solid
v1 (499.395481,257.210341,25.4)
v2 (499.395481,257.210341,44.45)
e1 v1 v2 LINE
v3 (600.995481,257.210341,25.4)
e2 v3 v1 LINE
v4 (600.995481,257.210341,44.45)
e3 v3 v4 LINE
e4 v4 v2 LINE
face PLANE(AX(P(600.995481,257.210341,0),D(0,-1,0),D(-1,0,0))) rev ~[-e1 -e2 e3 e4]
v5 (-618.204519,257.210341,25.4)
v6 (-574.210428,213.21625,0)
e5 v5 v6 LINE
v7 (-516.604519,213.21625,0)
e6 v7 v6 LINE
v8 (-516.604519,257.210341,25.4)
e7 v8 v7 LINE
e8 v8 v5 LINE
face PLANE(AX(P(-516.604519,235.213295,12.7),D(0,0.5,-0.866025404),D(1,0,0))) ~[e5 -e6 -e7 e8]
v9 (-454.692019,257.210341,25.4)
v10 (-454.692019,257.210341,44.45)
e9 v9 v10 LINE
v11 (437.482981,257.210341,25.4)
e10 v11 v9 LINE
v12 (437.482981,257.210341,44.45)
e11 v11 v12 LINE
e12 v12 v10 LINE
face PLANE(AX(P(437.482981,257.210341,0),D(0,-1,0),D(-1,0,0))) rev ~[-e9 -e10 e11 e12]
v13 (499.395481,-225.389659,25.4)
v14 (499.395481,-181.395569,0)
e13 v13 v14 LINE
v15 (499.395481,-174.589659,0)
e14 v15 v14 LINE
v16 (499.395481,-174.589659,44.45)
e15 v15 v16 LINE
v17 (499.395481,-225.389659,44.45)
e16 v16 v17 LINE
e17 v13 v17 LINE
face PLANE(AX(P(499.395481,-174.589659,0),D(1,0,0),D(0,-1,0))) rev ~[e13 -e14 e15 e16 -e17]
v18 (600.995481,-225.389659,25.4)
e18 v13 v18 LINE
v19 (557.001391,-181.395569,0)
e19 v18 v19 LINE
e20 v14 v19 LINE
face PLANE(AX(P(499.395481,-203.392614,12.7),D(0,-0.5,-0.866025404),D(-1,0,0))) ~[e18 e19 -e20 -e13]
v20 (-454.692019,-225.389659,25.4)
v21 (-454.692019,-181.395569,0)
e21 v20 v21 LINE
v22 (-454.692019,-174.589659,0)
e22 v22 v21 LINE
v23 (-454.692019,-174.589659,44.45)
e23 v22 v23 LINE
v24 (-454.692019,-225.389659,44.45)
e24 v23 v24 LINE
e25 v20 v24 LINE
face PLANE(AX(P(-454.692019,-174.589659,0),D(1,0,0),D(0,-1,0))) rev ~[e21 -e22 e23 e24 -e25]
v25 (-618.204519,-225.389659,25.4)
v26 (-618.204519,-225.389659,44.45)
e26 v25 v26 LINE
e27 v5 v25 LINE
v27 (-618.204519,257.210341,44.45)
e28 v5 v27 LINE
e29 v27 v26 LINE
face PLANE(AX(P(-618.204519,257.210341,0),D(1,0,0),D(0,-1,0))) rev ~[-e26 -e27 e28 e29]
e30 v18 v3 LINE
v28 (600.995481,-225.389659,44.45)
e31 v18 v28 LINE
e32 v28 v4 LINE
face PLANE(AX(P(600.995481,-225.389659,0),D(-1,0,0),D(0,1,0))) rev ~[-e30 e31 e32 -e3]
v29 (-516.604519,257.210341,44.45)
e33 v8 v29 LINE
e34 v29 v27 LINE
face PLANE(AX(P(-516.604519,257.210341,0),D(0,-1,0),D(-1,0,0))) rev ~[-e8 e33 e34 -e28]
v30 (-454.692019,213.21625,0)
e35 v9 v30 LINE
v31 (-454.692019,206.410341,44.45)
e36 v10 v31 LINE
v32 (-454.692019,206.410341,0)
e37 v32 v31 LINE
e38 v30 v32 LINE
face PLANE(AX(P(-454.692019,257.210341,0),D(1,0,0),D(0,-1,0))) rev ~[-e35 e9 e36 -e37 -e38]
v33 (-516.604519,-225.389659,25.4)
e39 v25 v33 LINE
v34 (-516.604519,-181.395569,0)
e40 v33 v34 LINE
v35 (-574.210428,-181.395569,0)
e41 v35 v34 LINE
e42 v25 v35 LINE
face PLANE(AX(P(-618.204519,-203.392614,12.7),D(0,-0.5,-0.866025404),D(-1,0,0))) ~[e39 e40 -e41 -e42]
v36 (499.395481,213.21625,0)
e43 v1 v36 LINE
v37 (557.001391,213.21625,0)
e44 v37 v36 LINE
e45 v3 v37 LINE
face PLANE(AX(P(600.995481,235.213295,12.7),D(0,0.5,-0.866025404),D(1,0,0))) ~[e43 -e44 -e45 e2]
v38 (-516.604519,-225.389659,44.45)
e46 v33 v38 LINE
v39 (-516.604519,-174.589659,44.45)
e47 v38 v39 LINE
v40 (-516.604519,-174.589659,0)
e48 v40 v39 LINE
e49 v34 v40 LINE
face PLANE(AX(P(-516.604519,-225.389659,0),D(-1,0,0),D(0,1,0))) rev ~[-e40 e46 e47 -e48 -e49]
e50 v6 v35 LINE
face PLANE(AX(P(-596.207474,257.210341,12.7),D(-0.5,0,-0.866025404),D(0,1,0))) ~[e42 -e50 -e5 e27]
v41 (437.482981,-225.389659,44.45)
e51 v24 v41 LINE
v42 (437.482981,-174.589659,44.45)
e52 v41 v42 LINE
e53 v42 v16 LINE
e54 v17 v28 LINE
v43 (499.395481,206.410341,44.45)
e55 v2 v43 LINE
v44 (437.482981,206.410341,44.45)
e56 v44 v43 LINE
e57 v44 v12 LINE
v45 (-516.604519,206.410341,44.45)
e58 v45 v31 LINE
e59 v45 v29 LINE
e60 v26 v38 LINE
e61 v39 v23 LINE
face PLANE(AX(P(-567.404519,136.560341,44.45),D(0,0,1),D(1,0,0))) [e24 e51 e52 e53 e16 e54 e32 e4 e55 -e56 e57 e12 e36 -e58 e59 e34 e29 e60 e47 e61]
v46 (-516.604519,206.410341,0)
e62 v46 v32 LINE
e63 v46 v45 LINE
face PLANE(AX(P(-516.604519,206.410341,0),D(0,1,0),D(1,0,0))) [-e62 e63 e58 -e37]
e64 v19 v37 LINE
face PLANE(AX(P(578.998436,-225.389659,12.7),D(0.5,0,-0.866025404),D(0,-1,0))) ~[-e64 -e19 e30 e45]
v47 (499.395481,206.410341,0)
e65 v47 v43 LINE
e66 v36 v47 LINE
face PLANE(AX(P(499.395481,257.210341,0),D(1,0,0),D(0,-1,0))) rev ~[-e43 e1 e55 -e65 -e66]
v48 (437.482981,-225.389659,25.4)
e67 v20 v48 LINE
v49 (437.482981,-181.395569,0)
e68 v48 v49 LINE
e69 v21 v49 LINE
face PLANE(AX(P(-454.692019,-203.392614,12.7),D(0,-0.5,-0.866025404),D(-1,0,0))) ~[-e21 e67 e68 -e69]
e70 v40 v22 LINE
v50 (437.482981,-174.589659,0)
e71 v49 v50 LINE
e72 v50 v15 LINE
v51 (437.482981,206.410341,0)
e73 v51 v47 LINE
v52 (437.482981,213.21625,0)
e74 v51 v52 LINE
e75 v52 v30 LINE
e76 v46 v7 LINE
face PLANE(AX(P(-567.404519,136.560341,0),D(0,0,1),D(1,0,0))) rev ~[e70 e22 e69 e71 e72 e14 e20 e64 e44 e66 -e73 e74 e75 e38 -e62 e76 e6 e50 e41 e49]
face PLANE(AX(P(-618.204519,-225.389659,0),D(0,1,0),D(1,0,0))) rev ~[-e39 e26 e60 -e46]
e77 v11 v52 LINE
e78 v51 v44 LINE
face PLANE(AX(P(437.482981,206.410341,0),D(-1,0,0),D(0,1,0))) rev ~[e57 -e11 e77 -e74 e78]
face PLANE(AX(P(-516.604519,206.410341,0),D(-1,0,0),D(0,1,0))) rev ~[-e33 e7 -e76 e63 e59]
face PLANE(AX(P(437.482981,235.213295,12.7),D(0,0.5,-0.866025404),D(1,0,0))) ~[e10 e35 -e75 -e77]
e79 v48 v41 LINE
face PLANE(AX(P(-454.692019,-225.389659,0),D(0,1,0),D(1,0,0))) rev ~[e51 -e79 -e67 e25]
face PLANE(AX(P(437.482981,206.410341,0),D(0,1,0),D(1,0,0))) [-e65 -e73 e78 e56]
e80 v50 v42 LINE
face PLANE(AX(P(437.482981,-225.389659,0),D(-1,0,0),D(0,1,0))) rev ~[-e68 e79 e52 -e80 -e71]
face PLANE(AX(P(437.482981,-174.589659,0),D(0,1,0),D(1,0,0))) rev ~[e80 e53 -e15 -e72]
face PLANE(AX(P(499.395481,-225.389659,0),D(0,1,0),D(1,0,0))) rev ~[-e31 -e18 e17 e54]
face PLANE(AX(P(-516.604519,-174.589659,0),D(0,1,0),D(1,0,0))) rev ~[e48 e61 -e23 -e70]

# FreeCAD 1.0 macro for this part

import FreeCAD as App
import Part
import Sketcher
Q = App.Units.Quantity


def edges_at(feature, points):
    """Names of the edges that pass closest to the given points."""
    edges = feature.Shape.Edges
    near = lambda p: min(range(len(edges)), key=lambda i: edges[i].distToShape(Part.Vertex(*p))[0])
    return sorted({f"Edge{near(p) + 1}" for p in points})

doc = App.newDocument("Part")
body = doc.addObject("PartDesign::Body", "Body")

# Sketch on XY plane
sketch1 = body.newObject("Sketcher::SketchObject", "Sketch")
sketch1.AttachmentSupport = (doc.getObject("XY_Plane"), [""])
sketch1.MapMode = "FlatFace"
sketch1.addGeometry([
    Part.LineSegment(App.Vector(-517, 257, 0), App.Vector(-618, 257, 0)),  # 0
    Part.LineSegment(App.Vector(-618, 257, 0), App.Vector(-618, -225, 0)),  # 1
    Part.LineSegment(App.Vector(-618, -225, 0), App.Vector(-517, -225, 0)),  # 2
    Part.LineSegment(App.Vector(-517, -225, 0), App.Vector(-517, -175, 0)),  # 3
    Part.LineSegment(App.Vector(-517, -175, 0), App.Vector(-455, -175, 0)),  # 4
    Part.LineSegment(App.Vector(-455, -175, 0), App.Vector(-455, -225, 0)),  # 5
    Part.LineSegment(App.Vector(-455, -225, 0), App.Vector(437, -225, 0)),  # 6
    Part.LineSegment(App.Vector(437, -225, 0), App.Vector(437, -175, 0)),  # 7
    Part.LineSegment(App.Vector(437, -175, 0), App.Vector(499, -175, 0)),  # 8
    Part.LineSegment(App.Vector(499, -175, 0), App.Vector(499, -225, 0)),  # 9
    Part.LineSegment(App.Vector(499, -225, 0), App.Vector(601, -225, 0)),  # 10
    Part.LineSegment(App.Vector(601, -225, 0), App.Vector(601, 257, 0)),  # 11
    Part.LineSegment(App.Vector(601, 257, 0), App.Vector(499, 257, 0)),  # 12
    Part.LineSegment(App.Vector(499, 257, 0), App.Vector(499, 206, 0)),  # 13
    Part.LineSegment(App.Vector(499, 206, 0), App.Vector(437, 206, 0)),  # 14
    Part.LineSegment(App.Vector(437, 206, 0), App.Vector(437, 257, 0)),  # 15
    Part.LineSegment(App.Vector(437, 257, 0), App.Vector(-455, 257, 0)),  # 16
    Part.LineSegment(App.Vector(-455, 257, 0), App.Vector(-455, 206, 0)),  # 17
    Part.LineSegment(App.Vector(-455, 206, 0), App.Vector(-517, 206, 0)),  # 18
    Part.LineSegment(App.Vector(-517, 206, 0), App.Vector(-517, 257, 0)),  # 19
], False)
sketch1.addConstraint([
    Sketcher.Constraint("Coincident", 0, 2, 1, 1),
    Sketcher.Constraint("Coincident", 1, 2, 2, 1),
    Sketcher.Constraint("Coincident", 2, 2, 3, 1),
    Sketcher.Constraint("Coincident", 3, 2, 4, 1),
    Sketcher.Constraint("Coincident", 4, 2, 5, 1),
    Sketcher.Constraint("Coincident", 5, 2, 6, 1),
    Sketcher.Constraint("Coincident", 6, 2, 7, 1),
    Sketcher.Constraint("Coincident", 7, 2, 8, 1),
    Sketcher.Constraint("Coincident", 8, 2, 9, 1),
    Sketcher.Constraint("Coincident", 9, 2, 10, 1),
    Sketcher.Constraint("Coincident", 10, 2, 11, 1),
    Sketcher.Constraint("Coincident", 11, 2, 12, 1),
    Sketcher.Constraint("Coincident", 12, 2, 13, 1),
    Sketcher.Constraint("Coincident", 13, 2, 14, 1),
    Sketcher.Constraint("Coincident", 14, 2, 15, 1),
    Sketcher.Constraint("Coincident", 15, 2, 16, 1),
    Sketcher.Constraint("Coincident", 16, 2, 17, 1),
    Sketcher.Constraint("Coincident", 17, 2, 18, 1),
    Sketcher.Constraint("Coincident", 18, 2, 19, 1),
    Sketcher.Constraint("Coincident", 19, 2, 0, 1),
    Sketcher.Constraint("Horizontal", 0),
    Sketcher.Constraint("Vertical", 1),
    Sketcher.Constraint("Horizontal", 2),
    Sketcher.Constraint("Vertical", 3),
    Sketcher.Constraint("Horizontal", 4),
    Sketcher.Constraint("Vertical", 5),
    Sketcher.Constraint("Horizontal", 6),
    Sketcher.Constraint("Vertical", 7),
    Sketcher.Constraint("Horizontal", 8),
    Sketcher.Constraint("Vertical", 9),
    Sketcher.Constraint("Horizontal", 10),
    Sketcher.Constraint("Vertical", 11),
    Sketcher.Constraint("Horizontal", 12),
    Sketcher.Constraint("Vertical", 13),
    Sketcher.Constraint("Horizontal", 14),
    Sketcher.Constraint("Vertical", 15),
    Sketcher.Constraint("Horizontal", 16),
    Sketcher.Constraint("Vertical", 17),
    Sketcher.Constraint("Horizontal", 18),
    Sketcher.Constraint("Vertical", 19),
    Sketcher.Constraint("Horizontal", 2, 2, 5, 2),
    Sketcher.Constraint("Horizontal", 4, 2, 7, 2),
    Sketcher.Constraint("Horizontal", 6, 2, 9, 2),
    Sketcher.Constraint("Horizontal", 0, 2, 11, 2),
    Sketcher.Constraint("Horizontal", 12, 2, 15, 2),
    Sketcher.Constraint("Horizontal", 14, 2, 17, 2),
    Sketcher.Constraint("Vertical", 9, 2, 12, 2),
    Sketcher.Constraint("Vertical", 7, 2, 14, 2),
    Sketcher.Constraint("Vertical", 5, 2, 16, 2),
    Sketcher.Constraint("Vertical", 3, 2, 18, 2),
    Sketcher.Constraint("Equal", 4, 8),
    Sketcher.Constraint("Equal", 2, 10),
    Sketcher.Constraint("Equal", 9, 13),
    Sketcher.Constraint("DistanceX", 0, 2, 0, 1, Q("4 in")),
    Sketcher.Constraint("DistanceY", 1, 2, 1, 1, Q("19 in")),
    Sketcher.Constraint("DistanceY", 3, 1, 3, 2, Q("2 in")),
    Sketcher.Constraint("DistanceX", 3, 2, 8, 2, Q("40 in")),
    Sketcher.Constraint("DistanceX", 4, 1, 4, 2, Q("2.4375 in")),
    Sketcher.Constraint("DistanceX", 0, 2, -1, 1, Q("618.204519 mm")),
    Sketcher.Constraint("DistanceY", -1, 1, 0, 2, Q("257.210341 mm")),
])
pad1 = body.newObject("PartDesign::Pad", "Pad")
pad1.Profile = sketch1
pad1.Length = Q("1.75 in")
doc.recompute()

chamfer = body.newObject("PartDesign::Chamfer", "Chamfer")
chamfer.Base = (pad1, edges_at(pad1, [
    (-618.205, 15.91, 0),
    (-567.405, -225.39, 0),
    (-8.605, -225.39, 0),
    (550.195, -225.39, 0),
    (600.995, 15.91, 0),
    (550.195, 257.21, 0),
    (-8.605, 257.21, 0),
    (-567.405, 257.21, 0),
]))
chamfer.ChamferType = "Two distances"
chamfer.Size = Q("1 in")
chamfer.Size2 = 43.994091

doc.recompute()
